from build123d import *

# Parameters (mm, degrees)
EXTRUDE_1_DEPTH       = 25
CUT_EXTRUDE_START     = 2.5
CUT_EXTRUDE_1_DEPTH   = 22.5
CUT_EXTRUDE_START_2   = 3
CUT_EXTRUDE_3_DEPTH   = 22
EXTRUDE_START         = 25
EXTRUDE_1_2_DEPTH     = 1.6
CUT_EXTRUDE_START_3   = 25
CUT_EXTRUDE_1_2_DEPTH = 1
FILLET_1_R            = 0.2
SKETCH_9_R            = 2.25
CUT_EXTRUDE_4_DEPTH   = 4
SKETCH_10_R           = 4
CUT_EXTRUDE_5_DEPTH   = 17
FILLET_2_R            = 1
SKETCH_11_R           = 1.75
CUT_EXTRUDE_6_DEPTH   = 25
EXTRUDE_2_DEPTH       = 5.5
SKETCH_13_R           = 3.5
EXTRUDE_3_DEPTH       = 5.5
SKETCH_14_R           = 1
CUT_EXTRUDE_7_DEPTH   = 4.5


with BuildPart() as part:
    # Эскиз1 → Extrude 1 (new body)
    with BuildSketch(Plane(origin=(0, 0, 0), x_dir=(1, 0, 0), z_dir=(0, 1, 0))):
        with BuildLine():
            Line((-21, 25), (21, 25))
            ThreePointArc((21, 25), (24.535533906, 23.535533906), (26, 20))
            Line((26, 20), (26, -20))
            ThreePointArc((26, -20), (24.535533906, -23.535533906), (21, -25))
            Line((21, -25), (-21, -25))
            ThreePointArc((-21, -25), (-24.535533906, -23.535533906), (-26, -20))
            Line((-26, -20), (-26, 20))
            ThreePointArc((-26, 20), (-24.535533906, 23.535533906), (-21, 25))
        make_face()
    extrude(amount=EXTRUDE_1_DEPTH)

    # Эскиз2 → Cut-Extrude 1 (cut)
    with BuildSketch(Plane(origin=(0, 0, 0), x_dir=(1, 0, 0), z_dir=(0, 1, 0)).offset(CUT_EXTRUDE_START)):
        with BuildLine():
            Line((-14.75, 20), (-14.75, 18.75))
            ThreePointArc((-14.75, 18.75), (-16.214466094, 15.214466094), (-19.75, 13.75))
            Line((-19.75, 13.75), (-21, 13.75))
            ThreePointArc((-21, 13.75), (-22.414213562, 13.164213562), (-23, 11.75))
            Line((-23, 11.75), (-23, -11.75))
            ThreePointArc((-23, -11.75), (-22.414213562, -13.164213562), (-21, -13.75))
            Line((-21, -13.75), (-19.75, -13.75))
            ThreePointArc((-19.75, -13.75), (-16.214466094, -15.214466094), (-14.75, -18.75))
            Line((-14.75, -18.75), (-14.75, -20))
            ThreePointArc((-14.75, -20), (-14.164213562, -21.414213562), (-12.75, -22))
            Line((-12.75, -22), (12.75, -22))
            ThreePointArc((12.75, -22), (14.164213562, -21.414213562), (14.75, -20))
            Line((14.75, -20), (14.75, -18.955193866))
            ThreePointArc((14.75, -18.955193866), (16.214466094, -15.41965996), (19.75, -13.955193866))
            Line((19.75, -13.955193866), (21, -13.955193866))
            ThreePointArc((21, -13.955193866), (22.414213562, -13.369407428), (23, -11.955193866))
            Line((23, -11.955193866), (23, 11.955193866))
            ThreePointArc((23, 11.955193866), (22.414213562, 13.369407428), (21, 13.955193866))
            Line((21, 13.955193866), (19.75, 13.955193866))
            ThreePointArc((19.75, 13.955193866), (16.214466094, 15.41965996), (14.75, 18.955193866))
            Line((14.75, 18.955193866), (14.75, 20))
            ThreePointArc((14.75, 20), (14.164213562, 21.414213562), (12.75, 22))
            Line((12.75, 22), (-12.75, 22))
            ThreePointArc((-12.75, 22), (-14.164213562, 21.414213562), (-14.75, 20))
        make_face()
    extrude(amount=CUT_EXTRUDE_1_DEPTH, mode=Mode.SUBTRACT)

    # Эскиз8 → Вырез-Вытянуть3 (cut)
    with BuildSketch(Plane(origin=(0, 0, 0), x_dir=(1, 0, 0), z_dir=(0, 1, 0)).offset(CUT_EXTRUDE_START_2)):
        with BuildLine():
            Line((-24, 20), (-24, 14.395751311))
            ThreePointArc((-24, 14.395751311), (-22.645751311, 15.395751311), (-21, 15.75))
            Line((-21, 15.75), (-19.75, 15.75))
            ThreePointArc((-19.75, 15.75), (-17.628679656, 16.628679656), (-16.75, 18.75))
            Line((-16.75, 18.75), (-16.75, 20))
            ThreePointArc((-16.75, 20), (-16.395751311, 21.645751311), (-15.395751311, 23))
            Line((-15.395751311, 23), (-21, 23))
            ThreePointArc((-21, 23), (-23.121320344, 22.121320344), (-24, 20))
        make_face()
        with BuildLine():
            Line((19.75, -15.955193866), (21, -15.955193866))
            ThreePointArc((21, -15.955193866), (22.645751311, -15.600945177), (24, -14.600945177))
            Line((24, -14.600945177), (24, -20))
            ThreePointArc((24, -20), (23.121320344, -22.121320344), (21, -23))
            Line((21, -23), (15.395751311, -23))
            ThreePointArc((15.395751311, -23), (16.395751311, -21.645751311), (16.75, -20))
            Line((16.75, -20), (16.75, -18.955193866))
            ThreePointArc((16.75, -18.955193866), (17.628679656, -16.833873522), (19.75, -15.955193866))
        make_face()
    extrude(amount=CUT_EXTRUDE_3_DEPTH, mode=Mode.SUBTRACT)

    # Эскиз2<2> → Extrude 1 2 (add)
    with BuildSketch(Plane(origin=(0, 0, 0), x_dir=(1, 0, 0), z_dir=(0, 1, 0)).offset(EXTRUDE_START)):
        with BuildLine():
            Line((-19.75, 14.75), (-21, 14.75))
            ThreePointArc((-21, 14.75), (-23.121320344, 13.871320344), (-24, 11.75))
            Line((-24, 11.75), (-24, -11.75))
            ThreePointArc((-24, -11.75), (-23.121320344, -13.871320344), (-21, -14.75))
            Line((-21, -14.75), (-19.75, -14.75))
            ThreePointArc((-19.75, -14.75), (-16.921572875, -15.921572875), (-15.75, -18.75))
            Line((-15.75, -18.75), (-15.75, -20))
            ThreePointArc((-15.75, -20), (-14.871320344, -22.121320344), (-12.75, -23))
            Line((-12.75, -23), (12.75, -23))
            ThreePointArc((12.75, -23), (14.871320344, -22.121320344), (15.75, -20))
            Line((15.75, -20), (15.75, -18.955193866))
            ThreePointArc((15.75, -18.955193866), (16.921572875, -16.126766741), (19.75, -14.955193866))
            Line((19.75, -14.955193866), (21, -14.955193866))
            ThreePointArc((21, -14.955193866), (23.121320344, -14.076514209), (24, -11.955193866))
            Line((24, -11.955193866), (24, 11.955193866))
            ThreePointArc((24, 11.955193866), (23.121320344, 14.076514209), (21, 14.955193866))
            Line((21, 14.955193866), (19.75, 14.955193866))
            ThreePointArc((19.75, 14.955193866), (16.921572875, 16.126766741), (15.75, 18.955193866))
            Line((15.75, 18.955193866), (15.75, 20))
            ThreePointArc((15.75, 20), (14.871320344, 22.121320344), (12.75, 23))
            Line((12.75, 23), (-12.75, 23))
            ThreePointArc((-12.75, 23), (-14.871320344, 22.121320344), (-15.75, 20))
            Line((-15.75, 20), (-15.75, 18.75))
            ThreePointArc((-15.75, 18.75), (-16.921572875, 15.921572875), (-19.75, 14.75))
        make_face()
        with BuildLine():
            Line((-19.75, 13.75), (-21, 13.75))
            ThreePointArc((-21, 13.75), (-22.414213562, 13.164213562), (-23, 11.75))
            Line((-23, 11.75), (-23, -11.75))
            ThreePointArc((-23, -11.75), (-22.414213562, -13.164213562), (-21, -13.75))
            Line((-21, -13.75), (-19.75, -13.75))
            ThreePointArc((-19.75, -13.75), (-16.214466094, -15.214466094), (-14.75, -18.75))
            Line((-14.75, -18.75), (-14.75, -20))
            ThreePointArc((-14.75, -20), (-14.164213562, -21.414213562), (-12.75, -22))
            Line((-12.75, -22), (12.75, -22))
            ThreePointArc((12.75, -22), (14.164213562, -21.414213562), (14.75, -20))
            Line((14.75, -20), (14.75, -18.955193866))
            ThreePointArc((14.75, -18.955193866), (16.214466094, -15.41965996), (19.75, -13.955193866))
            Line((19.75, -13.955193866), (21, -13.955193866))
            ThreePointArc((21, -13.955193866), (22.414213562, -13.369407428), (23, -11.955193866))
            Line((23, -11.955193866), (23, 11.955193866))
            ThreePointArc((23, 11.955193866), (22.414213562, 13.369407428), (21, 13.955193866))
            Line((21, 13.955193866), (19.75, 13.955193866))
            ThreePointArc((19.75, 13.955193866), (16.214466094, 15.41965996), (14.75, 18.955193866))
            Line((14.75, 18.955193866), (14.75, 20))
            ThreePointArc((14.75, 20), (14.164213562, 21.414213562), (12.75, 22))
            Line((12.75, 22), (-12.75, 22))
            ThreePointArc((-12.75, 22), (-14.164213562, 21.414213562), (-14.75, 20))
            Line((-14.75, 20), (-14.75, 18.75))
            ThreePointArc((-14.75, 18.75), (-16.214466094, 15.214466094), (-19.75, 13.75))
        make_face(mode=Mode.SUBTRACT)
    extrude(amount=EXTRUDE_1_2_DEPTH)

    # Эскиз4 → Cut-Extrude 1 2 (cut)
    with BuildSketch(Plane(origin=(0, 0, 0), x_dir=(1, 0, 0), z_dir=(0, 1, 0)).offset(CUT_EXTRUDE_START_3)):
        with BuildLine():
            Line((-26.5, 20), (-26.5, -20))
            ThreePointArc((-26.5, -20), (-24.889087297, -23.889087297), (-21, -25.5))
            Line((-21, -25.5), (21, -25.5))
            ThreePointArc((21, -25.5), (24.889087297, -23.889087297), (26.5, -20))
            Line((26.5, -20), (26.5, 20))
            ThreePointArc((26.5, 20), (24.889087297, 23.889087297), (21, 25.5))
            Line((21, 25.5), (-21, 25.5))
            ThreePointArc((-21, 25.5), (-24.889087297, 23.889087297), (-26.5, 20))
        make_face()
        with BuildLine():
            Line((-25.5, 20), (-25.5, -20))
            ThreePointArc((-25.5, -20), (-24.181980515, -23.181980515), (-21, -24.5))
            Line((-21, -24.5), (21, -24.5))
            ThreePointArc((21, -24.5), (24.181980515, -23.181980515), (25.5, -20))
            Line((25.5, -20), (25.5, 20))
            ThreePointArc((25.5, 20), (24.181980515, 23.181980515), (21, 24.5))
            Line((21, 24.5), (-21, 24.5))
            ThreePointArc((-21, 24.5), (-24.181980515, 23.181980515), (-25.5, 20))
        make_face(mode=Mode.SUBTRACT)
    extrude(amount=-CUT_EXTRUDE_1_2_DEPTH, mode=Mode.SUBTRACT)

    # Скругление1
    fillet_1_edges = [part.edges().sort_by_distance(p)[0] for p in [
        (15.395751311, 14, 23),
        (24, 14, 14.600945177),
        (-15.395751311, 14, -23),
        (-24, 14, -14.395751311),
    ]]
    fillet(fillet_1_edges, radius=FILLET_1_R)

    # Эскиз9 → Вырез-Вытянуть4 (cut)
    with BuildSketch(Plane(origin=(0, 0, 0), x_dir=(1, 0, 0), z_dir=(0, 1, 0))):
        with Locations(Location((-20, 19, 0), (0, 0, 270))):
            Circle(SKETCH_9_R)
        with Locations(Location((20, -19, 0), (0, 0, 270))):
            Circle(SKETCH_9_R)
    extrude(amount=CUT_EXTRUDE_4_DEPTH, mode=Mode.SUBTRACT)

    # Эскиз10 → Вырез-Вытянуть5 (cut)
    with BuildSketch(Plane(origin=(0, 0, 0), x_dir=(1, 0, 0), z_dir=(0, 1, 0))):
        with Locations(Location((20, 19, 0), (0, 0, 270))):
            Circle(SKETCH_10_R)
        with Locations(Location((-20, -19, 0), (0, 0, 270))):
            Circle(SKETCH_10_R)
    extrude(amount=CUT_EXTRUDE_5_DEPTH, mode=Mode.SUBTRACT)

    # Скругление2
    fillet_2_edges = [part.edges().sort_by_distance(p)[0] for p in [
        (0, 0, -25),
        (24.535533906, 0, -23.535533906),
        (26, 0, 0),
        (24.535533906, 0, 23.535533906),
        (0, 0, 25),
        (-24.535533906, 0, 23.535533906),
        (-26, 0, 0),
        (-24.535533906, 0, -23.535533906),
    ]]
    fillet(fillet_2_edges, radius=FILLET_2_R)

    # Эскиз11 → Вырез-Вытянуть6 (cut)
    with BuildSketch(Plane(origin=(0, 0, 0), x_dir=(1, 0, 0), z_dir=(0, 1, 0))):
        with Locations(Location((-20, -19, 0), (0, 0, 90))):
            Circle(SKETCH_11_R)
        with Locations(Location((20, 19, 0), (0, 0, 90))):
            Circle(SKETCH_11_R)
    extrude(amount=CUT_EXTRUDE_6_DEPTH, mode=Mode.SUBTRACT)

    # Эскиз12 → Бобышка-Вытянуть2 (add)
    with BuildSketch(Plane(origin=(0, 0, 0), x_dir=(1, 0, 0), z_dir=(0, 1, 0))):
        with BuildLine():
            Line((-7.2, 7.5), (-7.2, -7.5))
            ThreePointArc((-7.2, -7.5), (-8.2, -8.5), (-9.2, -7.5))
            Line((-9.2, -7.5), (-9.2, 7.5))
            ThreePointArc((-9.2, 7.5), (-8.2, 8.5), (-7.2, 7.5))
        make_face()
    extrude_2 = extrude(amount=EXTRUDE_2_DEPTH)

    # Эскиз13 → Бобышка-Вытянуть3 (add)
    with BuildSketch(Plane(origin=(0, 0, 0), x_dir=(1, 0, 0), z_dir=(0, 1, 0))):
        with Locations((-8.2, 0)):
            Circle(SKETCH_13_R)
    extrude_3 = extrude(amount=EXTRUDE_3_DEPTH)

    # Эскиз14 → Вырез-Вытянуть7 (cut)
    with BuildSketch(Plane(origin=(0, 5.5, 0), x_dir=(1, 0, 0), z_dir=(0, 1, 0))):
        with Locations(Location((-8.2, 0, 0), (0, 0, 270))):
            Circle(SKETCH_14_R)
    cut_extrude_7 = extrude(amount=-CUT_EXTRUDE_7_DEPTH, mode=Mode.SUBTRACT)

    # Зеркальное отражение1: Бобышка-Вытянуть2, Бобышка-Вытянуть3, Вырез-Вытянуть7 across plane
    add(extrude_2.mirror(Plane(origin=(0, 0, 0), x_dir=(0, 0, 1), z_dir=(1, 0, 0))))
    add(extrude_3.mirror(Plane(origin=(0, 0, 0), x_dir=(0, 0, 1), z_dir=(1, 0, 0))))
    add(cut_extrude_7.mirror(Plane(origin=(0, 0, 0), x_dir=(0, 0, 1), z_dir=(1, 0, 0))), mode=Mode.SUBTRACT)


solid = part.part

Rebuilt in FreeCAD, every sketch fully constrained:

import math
import FreeCAD as App
import Part
import Sketcher
from FreeCAD import Vector


def edges_at(feature, points):
    """Names of the edges that pass closest to the given points."""
    edges = feature.Shape.Edges
    near = lambda p: min(range(len(edges)), key=lambda i: edges[i].distToShape(Part.Vertex(*p))[0])
    return sorted({f"Edge{near(p) + 1}" for p in points})

doc = App.newDocument("Part")
body = doc.addObject("PartDesign::Body", "Body")

# Sketch on XZ plane
sketch1 = body.newObject("Sketcher::SketchObject", "Sketch")
sketch1.AttachmentSupport = (doc.getObject("XZ_Plane"), [""])
sketch1.MapMode = "FlatFace"
sketch1.addGeometry(Part.LineSegment(Vector(21, -25, 0), Vector(-21, -25, 0)), False)
sketch1.addGeometry(Part.ArcOfCircle(Part.Circle(Vector(-21, -20, 0), Vector(0, 0, 1), 5), math.radians(180), math.radians(270)), False)
sketch1.addGeometry(Part.LineSegment(Vector(-26, -20, 0), Vector(-26, 20, 0)), False)
sketch1.addGeometry(Part.ArcOfCircle(Part.Circle(Vector(-21, 20, 0), Vector(0, 0, 1), 5), math.radians(90), math.radians(180)), False)
sketch1.addGeometry(Part.LineSegment(Vector(-21, 25, 0), Vector(21, 25, 0)), False)
sketch1.addGeometry(Part.ArcOfCircle(Part.Circle(Vector(21, 20, 0), Vector(0, 0, 1), 5), math.radians(0), math.radians(90)), False)
sketch1.addGeometry(Part.LineSegment(Vector(26, 20, 0), Vector(26, -20, 0)), False)
sketch1.addGeometry(Part.ArcOfCircle(Part.Circle(Vector(21, -20, 0), Vector(0, 0, 1), 5), math.radians(-90), math.radians(0)), False)
sketch1.addConstraint(Sketcher.Constraint("Tangent", 0, 2, 1, 2))
sketch1.addConstraint(Sketcher.Constraint("Tangent", 1, 1, 2, 1))
sketch1.addConstraint(Sketcher.Constraint("Tangent", 2, 2, 3, 2))
sketch1.addConstraint(Sketcher.Constraint("Tangent", 3, 1, 4, 1))
sketch1.addConstraint(Sketcher.Constraint("Tangent", 4, 2, 5, 2))
sketch1.addConstraint(Sketcher.Constraint("Tangent", 5, 1, 6, 1))
sketch1.addConstraint(Sketcher.Constraint("Tangent", 6, 2, 7, 2))
sketch1.addConstraint(Sketcher.Constraint("Tangent", 7, 1, 0, 1))
sketch1.addConstraint(Sketcher.Constraint("Horizontal", 0))
sketch1.addConstraint(Sketcher.Constraint("Vertical", 2))
sketch1.addConstraint(Sketcher.Constraint("Horizontal", 4))
sketch1.addConstraint(Sketcher.Constraint("Vertical", 6))
sketch1.addConstraint(Sketcher.Constraint("Equal", 1, 3))
sketch1.addConstraint(Sketcher.Constraint("Equal", 3, 5))
sketch1.addConstraint(Sketcher.Constraint("Equal", 5, 7))
sketch1.addConstraint(Sketcher.Constraint("Symmetric", 1, 3, 5, 3, -1, 1))
sketch1.addConstraint(Sketcher.Constraint("Radius", 1, 5.0))
sketch1.addConstraint(Sketcher.Constraint("DistanceX", 0, 2, 0, 1, 42.0))
sketch1.addConstraint(Sketcher.Constraint("DistanceY", 2, 1, 2, 2, 40.0))
pad1 = body.newObject("PartDesign::Pad", "Pad")
pad1.Profile = sketch1
pad1.Length = 25
pad1.Reversed = True

# Sketch on XZ plane
sketch2 = body.newObject("Sketcher::SketchObject", "Sketch001")
sketch2.AttachmentSupport = (doc.getObject("XZ_Plane"), [""])
sketch2.MapMode = "FlatFace"
sketch2.AttachmentOffset = App.Placement(Vector(0, 0, -2.5), App.Rotation())
sketch2.addGeometry(Part.LineSegment(Vector(-14.8, -20, 0), Vector(-14.8, -18.8, 0)), False)
sketch2.addGeometry(Part.ArcOfCircle(Part.Circle(Vector(-19.8, -18.8, 0), Vector(0, 0, 1), 5), math.radians(0), math.radians(90)), False)
sketch2.addGeometry(Part.LineSegment(Vector(-19.8, -13.8, 0), Vector(-21, -13.8, 0)), False)
sketch2.addGeometry(Part.ArcOfCircle(Part.Circle(Vector(-21, -11.7, 0), Vector(0, 0, 1), 2), math.radians(-180), math.radians(-90)), False)
sketch2.addGeometry(Part.LineSegment(Vector(-23, -11.8, 0), Vector(-23, 11.8, 0)), False)
sketch2.addGeometry(Part.ArcOfCircle(Part.Circle(Vector(-21, 11.7, 0), Vector(0, 0, 1), 2), math.radians(90), math.radians(180)), False)
sketch2.addGeometry(Part.LineSegment(Vector(-21, 13.8, 0), Vector(-19.8, 13.8, 0)), False)
sketch2.addGeometry(Part.ArcOfCircle(Part.Circle(Vector(-19.8, 18.8, 0), Vector(0, 0, 1), 5), math.radians(-90), math.radians(0)), False)
sketch2.addGeometry(Part.LineSegment(Vector(-14.8, 18.8, 0), Vector(-14.8, 20, 0)), False)
sketch2.addGeometry(Part.ArcOfCircle(Part.Circle(Vector(-12.7, 20, 0), Vector(0, 0, 1), 2), math.radians(90), math.radians(180)), False)
sketch2.addGeometry(Part.LineSegment(Vector(-12.8, 22, 0), Vector(12.8, 22, 0)), False)
sketch2.addGeometry(Part.ArcOfCircle(Part.Circle(Vector(12.7, 20, 0), Vector(0, 0, 1), 2), math.radians(0), math.radians(90)), False)
sketch2.addGeometry(Part.LineSegment(Vector(14.8, 20, 0), Vector(14.8, 19, 0)), False)
sketch2.addGeometry(Part.ArcOfCircle(Part.Circle(Vector(19.8, 19, 0), Vector(0, 0, 1), 5), math.radians(180), math.radians(270)), False)
sketch2.addGeometry(Part.LineSegment(Vector(19.8, 14, 0), Vector(21, 14, 0)), False)
sketch2.addGeometry(Part.ArcOfCircle(Part.Circle(Vector(21, 12, 0), Vector(0, 0, 1), 2), math.radians(0), math.radians(90)), False)
sketch2.addGeometry(Part.LineSegment(Vector(23, 12, 0), Vector(23, -12, 0)), False)
sketch2.addGeometry(Part.ArcOfCircle(Part.Circle(Vector(21, -12, 0), Vector(0, 0, 1), 2), math.radians(-90), math.radians(0)), False)
sketch2.addGeometry(Part.LineSegment(Vector(21, -14, 0), Vector(19.8, -14, 0)), False)
sketch2.addGeometry(Part.ArcOfCircle(Part.Circle(Vector(19.8, -19, 0), Vector(0, 0, 1), 5), math.radians(90), math.radians(180)), False)
sketch2.addGeometry(Part.LineSegment(Vector(14.8, -19, 0), Vector(14.8, -20, 0)), False)
sketch2.addGeometry(Part.ArcOfCircle(Part.Circle(Vector(12.7, -20, 0), Vector(0, 0, 1), 2), math.radians(-90), math.radians(0)), False)
sketch2.addGeometry(Part.LineSegment(Vector(12.8, -22, 0), Vector(-12.8, -22, 0)), False)
sketch2.addGeometry(Part.ArcOfCircle(Part.Circle(Vector(-12.7, -20, 0), Vector(0, 0, 1), 2), math.radians(-180), math.radians(-90)), False)
sketch2.addConstraint(Sketcher.Constraint("Tangent", 0, 2, 1, 1))
sketch2.addConstraint(Sketcher.Constraint("Tangent", 1, 2, 2, 1))
sketch2.addConstraint(Sketcher.Constraint("Tangent", 2, 2, 3, 2))
sketch2.addConstraint(Sketcher.Constraint("Tangent", 3, 1, 4, 1))
sketch2.addConstraint(Sketcher.Constraint("Tangent", 4, 2, 5, 2))
sketch2.addConstraint(Sketcher.Constraint("Tangent", 5, 1, 6, 1))
sketch2.addConstraint(Sketcher.Constraint("Tangent", 6, 2, 7, 1))
sketch2.addConstraint(Sketcher.Constraint("Tangent", 7, 2, 8, 1))
sketch2.addConstraint(Sketcher.Constraint("Tangent", 8, 2, 9, 2))
sketch2.addConstraint(Sketcher.Constraint("Tangent", 9, 1, 10, 1))
sketch2.addConstraint(Sketcher.Constraint("Tangent", 10, 2, 11, 2))
sketch2.addConstraint(Sketcher.Constraint("Tangent", 11, 1, 12, 1))
sketch2.addConstraint(Sketcher.Constraint("Tangent", 12, 2, 13, 1))
sketch2.addConstraint(Sketcher.Constraint("Tangent", 13, 2, 14, 1))
sketch2.addConstraint(Sketcher.Constraint("Tangent", 14, 2, 15, 2))
sketch2.addConstraint(Sketcher.Constraint("Tangent", 15, 1, 16, 1))
sketch2.addConstraint(Sketcher.Constraint("Tangent", 16, 2, 17, 2))
sketch2.addConstraint(Sketcher.Constraint("Tangent", 17, 1, 18, 1))
sketch2.addConstraint(Sketcher.Constraint("Tangent", 18, 2, 19, 1))
sketch2.addConstraint(Sketcher.Constraint("Tangent", 19, 2, 20, 1))
sketch2.addConstraint(Sketcher.Constraint("Tangent", 20, 2, 21, 2))
sketch2.addConstraint(Sketcher.Constraint("Tangent", 21, 1, 22, 1))
sketch2.addConstraint(Sketcher.Constraint("Tangent", 22, 2, 23, 2))
sketch2.addConstraint(Sketcher.Constraint("Tangent", 23, 1, 0, 1))
sketch2.addConstraint(Sketcher.Constraint("Vertical", 0))
sketch2.addConstraint(Sketcher.Constraint("Horizontal", 2))
sketch2.addConstraint(Sketcher.Constraint("Vertical", 4))
sketch2.addConstraint(Sketcher.Constraint("Horizontal", 6))
sketch2.addConstraint(Sketcher.Constraint("Vertical", 8))
sketch2.addConstraint(Sketcher.Constraint("Horizontal", 10))
sketch2.addConstraint(Sketcher.Constraint("Vertical", 12))
sketch2.addConstraint(Sketcher.Constraint("Horizontal", 14))
sketch2.addConstraint(Sketcher.Constraint("Vertical", 16))
sketch2.addConstraint(Sketcher.Constraint("Horizontal", 18))
sketch2.addConstraint(Sketcher.Constraint("Vertical", 20))
sketch2.addConstraint(Sketcher.Constraint("Horizontal", 22))
sketch2.addConstraint(Sketcher.Constraint("Equal", 3, 5))
sketch2.addConstraint(Sketcher.Constraint("Equal", 1, 7))
sketch2.addConstraint(Sketcher.Constraint("Equal", 5, 9))
sketch2.addConstraint(Sketcher.Constraint("Equal", 9, 11))
sketch2.addConstraint(Sketcher.Constraint("Equal", 7, 13))
sketch2.addConstraint(Sketcher.Constraint("Equal", 11, 15))
sketch2.addConstraint(Sketcher.Constraint("Equal", 15, 17))
sketch2.addConstraint(Sketcher.Constraint("Equal", 13, 19))
sketch2.addConstraint(Sketcher.Constraint("Equal", 17, 21))
sketch2.addConstraint(Sketcher.Constraint("Equal", 21, 23))
sketch2.addConstraint(Sketcher.Constraint("Symmetric", 9, 3, 21, 3, -1, 1))
sketch2.addConstraint(Sketcher.Constraint("Symmetric", 1, 3, 7, 3, -1))
sketch2.addConstraint(Sketcher.Constraint("Symmetric", 13, 3, 19, 3, -1))
sketch2.addConstraint(Sketcher.Constraint("Equal", 6, 14))
sketch2.addConstraint(Sketcher.Constraint("Equal", 18, 0))
sketch2.addConstraint(Sketcher.Constraint("Radius", 1, 5.0))
sketch2.addConstraint(Sketcher.Constraint("Radius", 3, 2.0))
sketch2.addConstraint(Sketcher.Constraint("DistanceX", 10, 1, 10, 2, 25.5))
sketch2.addConstraint(Sketcher.Constraint("DistanceY", 4, 1, 4, 2, 23.5))
sketch2.addConstraint(Sketcher.Constraint("DistanceX", 3, 3, -1, 1, 21.0))
sketch2.addConstraint(Sketcher.Constraint("DistanceY", 12, 2, 12, 1, 1.044806))
pocket1 = body.newObject("PartDesign::Pocket", "Pocket")
pocket1.Profile = sketch2
pocket1.Length = 22.5

# Sketch on XZ plane
sketch3 = body.newObject("Sketcher::SketchObject", "Sketch002")
sketch3.AttachmentSupport = (doc.getObject("XZ_Plane"), [""])
sketch3.MapMode = "FlatFace"
sketch3.AttachmentOffset = App.Placement(Vector(0, 0, -3), App.Rotation())
sketch3.addGeometry(Part.LineSegment(Vector(-24, -20, 0), Vector(-24, -14.4, 0)), False)
sketch3.addGeometry(Part.ArcOfCircle(Part.Circle(Vector(-21, -11.7, 0), Vector(0, 0, 1), 4), math.radians(-139), math.radians(-90)), False)
sketch3.addGeometry(Part.LineSegment(Vector(-21, -15.8, 0), Vector(-19.8, -15.8, 0)), False)
sketch3.addGeometry(Part.ArcOfCircle(Part.Circle(Vector(-19.7, -18.7, 0), Vector(0, 0, 1), 3), math.radians(0), math.radians(90)), False)
sketch3.addGeometry(Part.LineSegment(Vector(-16.8, -18.8, 0), Vector(-16.8, -20, 0)), False)
sketch3.addGeometry(Part.ArcOfCircle(Part.Circle(Vector(-12.7, -20, 0), Vector(0, 0, 1), 4), math.radians(180), math.radians(229)), False)
sketch3.addGeometry(Part.LineSegment(Vector(-15.4, -23, 0), Vector(-21, -23, 0)), False)
sketch3.addGeometry(Part.ArcOfCircle(Part.Circle(Vector(-21, -20, 0), Vector(0, 0, 1), 3), math.radians(180), math.radians(270)), False)
sketch3.addGeometry(Part.LineSegment(Vector(21, 16, 0), Vector(19.8, 16, 0)), False)
sketch3.addGeometry(Part.ArcOfCircle(Part.Circle(Vector(19.7, 19, 0), Vector(0, 0, 1), 3), math.radians(180), math.radians(270)), False)
sketch3.addGeometry(Part.LineSegment(Vector(16.8, 19, 0), Vector(16.8, 20, 0)), False)
sketch3.addGeometry(Part.ArcOfCircle(Part.Circle(Vector(12.7, 20, 0), Vector(0, 0, 1), 4), math.radians(0), math.radians(49)), False)
sketch3.addGeometry(Part.LineSegment(Vector(15.4, 23, 0), Vector(21, 23, 0)), False)
sketch3.addGeometry(Part.ArcOfCircle(Part.Circle(Vector(21, 20, 0), Vector(0, 0, 1), 3), math.radians(0), math.radians(90)), False)
sketch3.addGeometry(Part.LineSegment(Vector(24, 20, 0), Vector(24, 14.6, 0)), False)
sketch3.addGeometry(Part.ArcOfCircle(Part.Circle(Vector(21, 12, 0), Vector(0, 0, 1), 4), math.radians(41), math.radians(90)), False)
sketch3.addConstraint(Sketcher.Constraint("Coincident", 0, 2, 1, 1))
sketch3.addConstraint(Sketcher.Constraint("Tangent", 1, 2, 2, 1))
sketch3.addConstraint(Sketcher.Constraint("Tangent", 2, 2, 3, 2))
sketch3.addConstraint(Sketcher.Constraint("Tangent", 3, 1, 4, 1))
sketch3.addConstraint(Sketcher.Constraint("Tangent", 4, 2, 5, 1))
sketch3.addConstraint(Sketcher.Constraint("Coincident", 5, 2, 6, 1))
sketch3.addConstraint(Sketcher.Constraint("Tangent", 6, 2, 7, 2))
sketch3.addConstraint(Sketcher.Constraint("Tangent", 7, 1, 0, 1))
sketch3.addConstraint(Sketcher.Constraint("Tangent", 8, 2, 9, 2))
sketch3.addConstraint(Sketcher.Constraint("Tangent", 9, 1, 10, 1))
sketch3.addConstraint(Sketcher.Constraint("Tangent", 10, 2, 11, 1))
sketch3.addConstraint(Sketcher.Constraint("Coincident", 11, 2, 12, 1))
sketch3.addConstraint(Sketcher.Constraint("Tangent", 12, 2, 13, 2))
sketch3.addConstraint(Sketcher.Constraint("Tangent", 13, 1, 14, 1))
sketch3.addConstraint(Sketcher.Constraint("Coincident", 14, 2, 15, 1))
sketch3.addConstraint(Sketcher.Constraint("Tangent", 15, 2, 8, 1))
sketch3.addConstraint(Sketcher.Constraint("Vertical", 0))
sketch3.addConstraint(Sketcher.Constraint("Horizontal", 2))
sketch3.addConstraint(Sketcher.Constraint("Vertical", 4))
sketch3.addConstraint(Sketcher.Constraint("Horizontal", 6))
sketch3.addConstraint(Sketcher.Constraint("Horizontal", 8))
sketch3.addConstraint(Sketcher.Constraint("Vertical", 10))
sketch3.addConstraint(Sketcher.Constraint("Horizontal", 12))
sketch3.addConstraint(Sketcher.Constraint("Vertical", 14))
sketch3.addConstraint(Sketcher.Constraint("Equal", 1, 5))
sketch3.addConstraint(Sketcher.Constraint("Equal", 3, 7))
sketch3.addConstraint(Sketcher.Constraint("Equal", 7, 9))
sketch3.addConstraint(Sketcher.Constraint("Equal", 5, 11))
sketch3.addConstraint(Sketcher.Constraint("Equal", 9, 13))
sketch3.addConstraint(Sketcher.Constraint("Equal", 11, 15))
sketch3.addConstraint(Sketcher.Constraint("Symmetric", 5, 3, 11, 3, -1, 1))
sketch3.addConstraint(Sketcher.Constraint("Symmetric", 7, 3, 13, 3, -1, 1))
sketch3.addConstraint(Sketcher.Constraint("Horizontal", 5, 3, 7, 3))
sketch3.addConstraint(Sketcher.Constraint("Vertical", 1, 3, 7, 3))
sketch3.addConstraint(Sketcher.Constraint("Vertical", 13, 3, 15, 3))
sketch3.addConstraint(Sketcher.Constraint("Equal", 12, 0))
sketch3.addConstraint(Sketcher.Constraint("Radius", 1, 4.0))
sketch3.addConstraint(Sketcher.Constraint("Radius", 3, 3.0))
sketch3.addConstraint(Sketcher.Constraint("DistanceX", 1, 3, -1, 1, 21.0))
sketch3.addConstraint(Sketcher.Constraint("DistanceY", 5, 3, -1, 1, 20.0))
sketch3.addConstraint(Sketcher.Constraint("DistanceX", 2, 1, 2, 2, 1.25))
sketch3.addConstraint(Sketcher.Constraint("DistanceY", 10, 1, 10, 2, 1.044806))
pocket2 = body.newObject("PartDesign::Pocket", "Pocket001")
pocket2.Profile = sketch3
pocket2.Length = 22

# Sketch on XZ plane
sketch4 = body.newObject("Sketcher::SketchObject", "Sketch003")
sketch4.AttachmentSupport = (doc.getObject("XZ_Plane"), [""])
sketch4.MapMode = "FlatFace"
sketch4.AttachmentOffset = App.Placement(Vector(0, 0, -25), App.Rotation())
sketch4.addGeometry(Part.LineSegment(Vector(-19.8, -14.8, 0), Vector(-21, -14.8, 0)), False)
sketch4.addGeometry(Part.ArcOfCircle(Part.Circle(Vector(-21, -11.8, 0), Vector(0, 0, 1), 3), math.radians(180), math.radians(270)), False)
sketch4.addGeometry(Part.LineSegment(Vector(-24, -11.8, 0), Vector(-24, 11.8, 0)), False)
sketch4.addGeometry(Part.ArcOfCircle(Part.Circle(Vector(-21, 11.8, 0), Vector(0, 0, 1), 3), math.radians(90), math.radians(180)), False)
sketch4.addGeometry(Part.LineSegment(Vector(-21, 14.8, 0), Vector(-19.8, 14.8, 0)), False)
sketch4.addGeometry(Part.ArcOfCircle(Part.Circle(Vector(-19.7, 18.7, 0), Vector(0, 0, 1), 4), math.radians(-90), math.radians(0)), False)
sketch4.addGeometry(Part.LineSegment(Vector(-15.8, 18.8, 0), Vector(-15.8, 20, 0)), False)
sketch4.addGeometry(Part.ArcOfCircle(Part.Circle(Vector(-12.8, 20, 0), Vector(0, 0, 1), 3), math.radians(90), math.radians(180)), False)
sketch4.addGeometry(Part.LineSegment(Vector(-12.8, 23, 0), Vector(12.8, 23, 0)), False)
sketch4.addGeometry(Part.ArcOfCircle(Part.Circle(Vector(12.8, 20, 0), Vector(0, 0, 1), 3), math.radians(0), math.radians(90)), False)
sketch4.addGeometry(Part.LineSegment(Vector(15.8, 20, 0), Vector(15.8, 19, 0)), False)
sketch4.addGeometry(Part.ArcOfCircle(Part.Circle(Vector(19.7, 19, 0), Vector(0, 0, 1), 4), math.radians(180), math.radians(270)), False)
sketch4.addGeometry(Part.LineSegment(Vector(19.8, 15, 0), Vector(21, 15, 0)), False)
sketch4.addGeometry(Part.ArcOfCircle(Part.Circle(Vector(21, 12, 0), Vector(0, 0, 1), 3), math.radians(0), math.radians(90)), False)
sketch4.addGeometry(Part.LineSegment(Vector(24, 12, 0), Vector(24, -12, 0)), False)
sketch4.addGeometry(Part.ArcOfCircle(Part.Circle(Vector(21, -12, 0), Vector(0, 0, 1), 3), math.radians(-90), math.radians(0)), False)
sketch4.addGeometry(Part.LineSegment(Vector(21, -15, 0), Vector(19.8, -15, 0)), False)
sketch4.addGeometry(Part.ArcOfCircle(Part.Circle(Vector(19.7, -19, 0), Vector(0, 0, 1), 4), math.radians(90), math.radians(180)), False)
sketch4.addGeometry(Part.LineSegment(Vector(15.8, -19, 0), Vector(15.8, -20, 0)), False)
sketch4.addGeometry(Part.ArcOfCircle(Part.Circle(Vector(12.8, -20, 0), Vector(0, 0, 1), 3), math.radians(-90), math.radians(0)), False)
sketch4.addGeometry(Part.LineSegment(Vector(12.8, -23, 0), Vector(-12.8, -23, 0)), False)
sketch4.addGeometry(Part.ArcOfCircle(Part.Circle(Vector(-12.8, -20, 0), Vector(0, 0, 1), 3), math.radians(180), math.radians(270)), False)
sketch4.addGeometry(Part.LineSegment(Vector(-15.8, -20, 0), Vector(-15.8, -18.8, 0)), False)
sketch4.addGeometry(Part.ArcOfCircle(Part.Circle(Vector(-19.7, -18.7, 0), Vector(0, 0, 1), 4), math.radians(0), math.radians(90)), False)
sketch4.addGeometry(Part.LineSegment(Vector(-21, -13.8, 0), Vector(-19.8, -13.8, 0)), False)
sketch4.addGeometry(Part.ArcOfCircle(Part.Circle(Vector(-19.8, -18.8, 0), Vector(0, 0, 1), 5), math.radians(0), math.radians(90)), False)
sketch4.addGeometry(Part.LineSegment(Vector(-14.8, -18.8, 0), Vector(-14.8, -20, 0)), False)
sketch4.addGeometry(Part.ArcOfCircle(Part.Circle(Vector(-12.7, -20, 0), Vector(0, 0, 1), 2), math.radians(-180), math.radians(-90)), False)
sketch4.addGeometry(Part.LineSegment(Vector(-12.8, -22, 0), Vector(12.8, -22, 0)), False)
sketch4.addGeometry(Part.ArcOfCircle(Part.Circle(Vector(12.7, -20, 0), Vector(0, 0, 1), 2), math.radians(-90), math.radians(0)), False)
sketch4.addGeometry(Part.LineSegment(Vector(14.8, -20, 0), Vector(14.8, -19, 0)), False)
sketch4.addGeometry(Part.ArcOfCircle(Part.Circle(Vector(19.8, -19, 0), Vector(0, 0, 1), 5), math.radians(90), math.radians(180)), False)
sketch4.addGeometry(Part.LineSegment(Vector(19.8, -14, 0), Vector(21, -14, 0)), False)
sketch4.addGeometry(Part.ArcOfCircle(Part.Circle(Vector(21, -12, 0), Vector(0, 0, 1), 2), math.radians(-90), math.radians(0)), False)
sketch4.addGeometry(Part.LineSegment(Vector(23, -12, 0), Vector(23, 12, 0)), False)
sketch4.addGeometry(Part.ArcOfCircle(Part.Circle(Vector(21, 12, 0), Vector(0, 0, 1), 2), math.radians(0), math.radians(90)), False)
sketch4.addGeometry(Part.LineSegment(Vector(21, 14, 0), Vector(19.8, 14, 0)), False)
sketch4.addGeometry(Part.ArcOfCircle(Part.Circle(Vector(19.8, 19, 0), Vector(0, 0, 1), 5), math.radians(180), math.radians(270)), False)
sketch4.addGeometry(Part.LineSegment(Vector(14.8, 19, 0), Vector(14.8, 20, 0)), False)
sketch4.addGeometry(Part.ArcOfCircle(Part.Circle(Vector(12.7, 20, 0), Vector(0, 0, 1), 2), math.radians(0), math.radians(90)), False)
sketch4.addGeometry(Part.LineSegment(Vector(12.8, 22, 0), Vector(-12.8, 22, 0)), False)
sketch4.addGeometry(Part.ArcOfCircle(Part.Circle(Vector(-12.7, 20, 0), Vector(0, 0, 1), 2), math.radians(90), math.radians(180)), False)
sketch4.addGeometry(Part.LineSegment(Vector(-14.8, 20, 0), Vector(-14.8, 18.8, 0)), False)
sketch4.addGeometry(Part.ArcOfCircle(Part.Circle(Vector(-19.8, 18.8, 0), Vector(0, 0, 1), 5), math.radians(-90), math.radians(0)), False)
sketch4.addGeometry(Part.LineSegment(Vector(-19.8, 13.8, 0), Vector(-21, 13.8, 0)), False)
sketch4.addGeometry(Part.ArcOfCircle(Part.Circle(Vector(-21, 11.7, 0), Vector(0, 0, 1), 2), math.radians(90), math.radians(180)), False)
sketch4.addGeometry(Part.LineSegment(Vector(-23, 11.8, 0), Vector(-23, -11.8, 0)), False)
sketch4.addGeometry(Part.ArcOfCircle(Part.Circle(Vector(-21, -11.7, 0), Vector(0, 0, 1), 2), math.radians(-180), math.radians(-90)), False)
sketch4.addConstraint(Sketcher.Constraint("Tangent", 0, 2, 1, 2))
sketch4.addConstraint(Sketcher.Constraint("Tangent", 1, 1, 2, 1))
sketch4.addConstraint(Sketcher.Constraint("Tangent", 2, 2, 3, 2))
sketch4.addConstraint(Sketcher.Constraint("Tangent", 3, 1, 4, 1))
sketch4.addConstraint(Sketcher.Constraint("Tangent", 4, 2, 5, 1))
sketch4.addConstraint(Sketcher.Constraint("Tangent", 5, 2, 6, 1))
sketch4.addConstraint(Sketcher.Constraint("Tangent", 6, 2, 7, 2))
sketch4.addConstraint(Sketcher.Constraint("Tangent", 7, 1, 8, 1))
sketch4.addConstraint(Sketcher.Constraint("Tangent", 8, 2, 9, 2))
sketch4.addConstraint(Sketcher.Constraint("Tangent", 9, 1, 10, 1))
sketch4.addConstraint(Sketcher.Constraint("Tangent", 10, 2, 11, 1))
sketch4.addConstraint(Sketcher.Constraint("Tangent", 11, 2, 12, 1))
sketch4.addConstraint(Sketcher.Constraint("Tangent", 12, 2, 13, 2))
sketch4.addConstraint(Sketcher.Constraint("Tangent", 13, 1, 14, 1))
sketch4.addConstraint(Sketcher.Constraint("Tangent", 14, 2, 15, 2))
sketch4.addConstraint(Sketcher.Constraint("Tangent", 15, 1, 16, 1))
sketch4.addConstraint(Sketcher.Constraint("Tangent", 16, 2, 17, 1))
sketch4.addConstraint(Sketcher.Constraint("Tangent", 17, 2, 18, 1))
sketch4.addConstraint(Sketcher.Constraint("Tangent", 18, 2, 19, 2))
sketch4.addConstraint(Sketcher.Constraint("Tangent", 19, 1, 20, 1))
sketch4.addConstraint(Sketcher.Constraint("Tangent", 20, 2, 21, 2))
sketch4.addConstraint(Sketcher.Constraint("Tangent", 21, 1, 22, 1))
sketch4.addConstraint(Sketcher.Constraint("Tangent", 22, 2, 23, 1))
sketch4.addConstraint(Sketcher.Constraint("Tangent", 23, 2, 0, 1))
sketch4.addConstraint(Sketcher.Constraint("Tangent", 24, 2, 25, 2))
sketch4.addConstraint(Sketcher.Constraint("Tangent", 25, 1, 26, 1))
sketch4.addConstraint(Sketcher.Constraint("Tangent", 26, 2, 27, 1))
sketch4.addConstraint(Sketcher.Constraint("Tangent", 27, 2, 28, 1))
sketch4.addConstraint(Sketcher.Constraint("Tangent", 28, 2, 29, 1))
sketch4.addConstraint(Sketcher.Constraint("Tangent", 29, 2, 30, 1))
sketch4.addConstraint(Sketcher.Constraint("Tangent", 30, 2, 31, 2))
sketch4.addConstraint(Sketcher.Constraint("Tangent", 31, 1, 32, 1))
sketch4.addConstraint(Sketcher.Constraint("Tangent", 32, 2, 33, 1))
sketch4.addConstraint(Sketcher.Constraint("Tangent", 33, 2, 34, 1))
sketch4.addConstraint(Sketcher.Constraint("Tangent", 34, 2, 35, 1))
sketch4.addConstraint(Sketcher.Constraint("Tangent", 35, 2, 36, 1))
sketch4.addConstraint(Sketcher.Constraint("Tangent", 36, 2, 37, 2))
sketch4.addConstraint(Sketcher.Constraint("Tangent", 37, 1, 38, 1))
sketch4.addConstraint(Sketcher.Constraint("Tangent", 38, 2, 39, 1))
sketch4.addConstraint(Sketcher.Constraint("Tangent", 39, 2, 40, 1))
sketch4.addConstraint(Sketcher.Constraint("Tangent", 40, 2, 41, 1))
sketch4.addConstraint(Sketcher.Constraint("Tangent", 41, 2, 42, 1))
sketch4.addConstraint(Sketcher.Constraint("Tangent", 42, 2, 43, 2))
sketch4.addConstraint(Sketcher.Constraint("Tangent", 43, 1, 44, 1))
sketch4.addConstraint(Sketcher.Constraint("Tangent", 44, 2, 45, 1))
sketch4.addConstraint(Sketcher.Constraint("Tangent", 45, 2, 46, 1))
sketch4.addConstraint(Sketcher.Constraint("Tangent", 46, 2, 47, 1))
sketch4.addConstraint(Sketcher.Constraint("Tangent", 47, 2, 24, 1))
sketch4.addConstraint(Sketcher.Constraint("Horizontal", 0))
sketch4.addConstraint(Sketcher.Constraint("Vertical", 2))
sketch4.addConstraint(Sketcher.Constraint("Horizontal", 4))
sketch4.addConstraint(Sketcher.Constraint("Vertical", 6))
sketch4.addConstraint(Sketcher.Constraint("Horizontal", 8))
sketch4.addConstraint(Sketcher.Constraint("Vertical", 10))
sketch4.addConstraint(Sketcher.Constraint("Horizontal", 12))
sketch4.addConstraint(Sketcher.Constraint("Vertical", 14))
sketch4.addConstraint(Sketcher.Constraint("Horizontal", 16))
sketch4.addConstraint(Sketcher.Constraint("Vertical", 18))
sketch4.addConstraint(Sketcher.Constraint("Horizontal", 20))
sketch4.addConstraint(Sketcher.Constraint("Vertical", 22))
sketch4.addConstraint(Sketcher.Constraint("Horizontal", 24))
sketch4.addConstraint(Sketcher.Constraint("Vertical", 26))
sketch4.addConstraint(Sketcher.Constraint("Horizontal", 28))
sketch4.addConstraint(Sketcher.Constraint("Vertical", 30))
sketch4.addConstraint(Sketcher.Constraint("Horizontal", 32))
sketch4.addConstraint(Sketcher.Constraint("Vertical", 34))
sketch4.addConstraint(Sketcher.Constraint("Horizontal", 36))
sketch4.addConstraint(Sketcher.Constraint("Vertical", 38))
sketch4.addConstraint(Sketcher.Constraint("Horizontal", 40))
sketch4.addConstraint(Sketcher.Constraint("Vertical", 42))
sketch4.addConstraint(Sketcher.Constraint("Horizontal", 44))
sketch4.addConstraint(Sketcher.Constraint("Vertical", 46))
sketch4.addConstraint(Sketcher.Constraint("Coincident", 25, 3, 23, 3))
sketch4.addConstraint(Sketcher.Constraint("Coincident", 27, 3, 21, 3))
sketch4.addConstraint(Sketcher.Constraint("Coincident", 29, 3, 19, 3))
sketch4.addConstraint(Sketcher.Constraint("Coincident", 31, 3, 17, 3))
sketch4.addConstraint(Sketcher.Constraint("Coincident", 33, 3, 15, 3))
sketch4.addConstraint(Sketcher.Constraint("Coincident", 35, 3, 13, 3))
sketch4.addConstraint(Sketcher.Constraint("Coincident", 37, 3, 11, 3))
sketch4.addConstraint(Sketcher.Constraint("Coincident", 39, 3, 9, 3))
sketch4.addConstraint(Sketcher.Constraint("Coincident", 41, 3, 7, 3))
sketch4.addConstraint(Sketcher.Constraint("Coincident", 43, 3, 5, 3))
sketch4.addConstraint(Sketcher.Constraint("Coincident", 45, 3, 3, 3))
sketch4.addConstraint(Sketcher.Constraint("Equal", 1, 3))
sketch4.addConstraint(Sketcher.Constraint("Equal", 3, 7))
sketch4.addConstraint(Sketcher.Constraint("Equal", 7, 9))
sketch4.addConstraint(Sketcher.Constraint("Equal", 5, 11))
sketch4.addConstraint(Sketcher.Constraint("Equal", 9, 13))
sketch4.addConstraint(Sketcher.Constraint("Equal", 13, 15))
sketch4.addConstraint(Sketcher.Constraint("Equal", 11, 17))
sketch4.addConstraint(Sketcher.Constraint("Equal", 15, 19))
sketch4.addConstraint(Sketcher.Constraint("Equal", 19, 21))
sketch4.addConstraint(Sketcher.Constraint("Equal", 17, 23))
sketch4.addConstraint(Sketcher.Constraint("Equal", 45, 47))
sketch4.addConstraint(Sketcher.Constraint("Symmetric", 7, 3, 19, 3, -1, 1))
sketch4.addConstraint(Sketcher.Constraint("Symmetric", 11, 3, 17, 3, -1))
sketch4.addConstraint(Sketcher.Constraint("Symmetric", 5, 3, 23, 3, -1))
sketch4.addConstraint(Sketcher.Constraint("Equal", 4, 12))
sketch4.addConstraint(Sketcher.Constraint("Equal", 44, 6))
sketch4.addConstraint(Sketcher.Constraint("Radius", 1, 3.0))
sketch4.addConstraint(Sketcher.Constraint("Radius", 5, 4.0))
sketch4.addConstraint(Sketcher.Constraint("Radius", 25, 5.0))
sketch4.addConstraint(Sketcher.Constraint("DistanceX", 8, 1, 8, 2, 25.5))
sketch4.addConstraint(Sketcher.Constraint("DistanceY", 2, 1, 2, 2, 23.5))
sketch4.addConstraint(Sketcher.Constraint("DistanceX", 1, 3, -1, 1, 21.0))
sketch4.addConstraint(Sketcher.Constraint("DistanceY", 10, 2, 10, 1, 1.044806))
pad2 = body.newObject("PartDesign::Pad", "Pad001")
pad2.Profile = sketch4
pad2.Length = 1.6
pad2.Reversed = True

# Sketch on XZ plane
sketch5 = body.newObject("Sketcher::SketchObject", "Sketch004")
sketch5.AttachmentSupport = (doc.getObject("XZ_Plane"), [""])
sketch5.MapMode = "FlatFace"
sketch5.AttachmentOffset = App.Placement(Vector(0, 0, -25), App.Rotation())
sketch5.addGeometry(Part.LineSegment(Vector(-26.5, -20, 0), Vector(-26.5, 20, 0)), False)
sketch5.addGeometry(Part.ArcOfCircle(Part.Circle(Vector(-21, 20, 0), Vector(0, 0, 1), 5.5), math.radians(90), math.radians(180)), False)
sketch5.addGeometry(Part.LineSegment(Vector(-21, 25.5, 0), Vector(21, 25.5, 0)), False)
sketch5.addGeometry(Part.ArcOfCircle(Part.Circle(Vector(21, 20, 0), Vector(0, 0, 1), 5.5), math.radians(0), math.radians(90)), False)
sketch5.addGeometry(Part.LineSegment(Vector(26.5, 20, 0), Vector(26.5, -20, 0)), False)
sketch5.addGeometry(Part.ArcOfCircle(Part.Circle(Vector(21, -20, 0), Vector(0, 0, 1), 5.5), math.radians(-90), math.radians(0)), False)
sketch5.addGeometry(Part.LineSegment(Vector(21, -25.5, 0), Vector(-21, -25.5, 0)), False)
sketch5.addGeometry(Part.ArcOfCircle(Part.Circle(Vector(-21, -20, 0), Vector(0, 0, 1), 5.5), math.radians(180), math.radians(270)), False)
sketch5.addGeometry(Part.LineSegment(Vector(-25.5, 20, 0), Vector(-25.5, -20, 0)), False)
sketch5.addGeometry(Part.ArcOfCircle(Part.Circle(Vector(-21, -20, 0), Vector(0, 0, 1), 4.5), math.radians(-180), math.radians(-90)), False)
sketch5.addGeometry(Part.LineSegment(Vector(-21, -24.5, 0), Vector(21, -24.5, 0)), False)
sketch5.addGeometry(Part.ArcOfCircle(Part.Circle(Vector(21, -20, 0), Vector(0, 0, 1), 4.5), math.radians(-90), math.radians(0)), False)
sketch5.addGeometry(Part.LineSegment(Vector(25.5, -20, 0), Vector(25.5, 20, 0)), False)
sketch5.addGeometry(Part.ArcOfCircle(Part.Circle(Vector(21, 20, 0), Vector(0, 0, 1), 4.5), math.radians(0), math.radians(90)), False)
sketch5.addGeometry(Part.LineSegment(Vector(21, 24.5, 0), Vector(-21, 24.5, 0)), False)
sketch5.addGeometry(Part.ArcOfCircle(Part.Circle(Vector(-21, 20, 0), Vector(0, 0, 1), 4.5), math.radians(90), math.radians(180)), False)
sketch5.addConstraint(Sketcher.Constraint("Tangent", 0, 2, 1, 2))
sketch5.addConstraint(Sketcher.Constraint("Tangent", 1, 1, 2, 1))
sketch5.addConstraint(Sketcher.Constraint("Tangent", 2, 2, 3, 2))
sketch5.addConstraint(Sketcher.Constraint("Tangent", 3, 1, 4, 1))
sketch5.addConstraint(Sketcher.Constraint("Tangent", 4, 2, 5, 2))
sketch5.addConstraint(Sketcher.Constraint("Tangent", 5, 1, 6, 1))
sketch5.addConstraint(Sketcher.Constraint("Tangent", 6, 2, 7, 2))
sketch5.addConstraint(Sketcher.Constraint("Tangent", 7, 1, 0, 1))
sketch5.addConstraint(Sketcher.Constraint("Tangent", 8, 2, 9, 1))
sketch5.addConstraint(Sketcher.Constraint("Tangent", 9, 2, 10, 1))
sketch5.addConstraint(Sketcher.Constraint("Tangent", 10, 2, 11, 1))
sketch5.addConstraint(Sketcher.Constraint("Tangent", 11, 2, 12, 1))
sketch5.addConstraint(Sketcher.Constraint("Tangent", 12, 2, 13, 1))
sketch5.addConstraint(Sketcher.Constraint("Tangent", 13, 2, 14, 1))
sketch5.addConstraint(Sketcher.Constraint("Tangent", 14, 2, 15, 1))
sketch5.addConstraint(Sketcher.Constraint("Tangent", 15, 2, 8, 1))
sketch5.addConstraint(Sketcher.Constraint("Vertical", 0))
sketch5.addConstraint(Sketcher.Constraint("Horizontal", 2))
sketch5.addConstraint(Sketcher.Constraint("Vertical", 4))
sketch5.addConstraint(Sketcher.Constraint("Horizontal", 6))
sketch5.addConstraint(Sketcher.Constraint("Vertical", 8))
sketch5.addConstraint(Sketcher.Constraint("Horizontal", 10))
sketch5.addConstraint(Sketcher.Constraint("Vertical", 12))
sketch5.addConstraint(Sketcher.Constraint("Horizontal", 14))
sketch5.addConstraint(Sketcher.Constraint("Coincident", 9, 3, 7, 3))
sketch5.addConstraint(Sketcher.Constraint("Coincident", 11, 3, 5, 3))
sketch5.addConstraint(Sketcher.Constraint("Coincident", 13, 3, 3, 3))
sketch5.addConstraint(Sketcher.Constraint("Equal", 1, 3))
sketch5.addConstraint(Sketcher.Constraint("Equal", 3, 5))
sketch5.addConstraint(Sketcher.Constraint("Equal", 5, 7))
sketch5.addConstraint(Sketcher.Constraint("Equal", 13, 15))
sketch5.addConstraint(Sketcher.Constraint("Symmetric", 1, 3, 5, 3, -1, 1))
sketch5.addConstraint(Sketcher.Constraint("Radius", 1, 5.5))
sketch5.addConstraint(Sketcher.Constraint("Radius", 9, 4.5))
sketch5.addConstraint(Sketcher.Constraint("DistanceX", 2, 1, 2, 2, 42.0))
sketch5.addConstraint(Sketcher.Constraint("DistanceY", 0, 1, 0, 2, 40.0))
pocket3 = body.newObject("PartDesign::Pocket", "Pocket002")
pocket3.Profile = sketch5
pocket3.Length = 1
pocket3.Reversed = True
doc.recompute()

fillet = body.newObject("PartDesign::Fillet", "Fillet")
fillet.Base = (pocket3, edges_at(pocket3, [
    (15.396, 14, 23),
    (24, 14, 14.601),
    (-15.396, 14, -23),
    (-24, 14, -14.396),
]))
fillet.Radius = 0.2

# Sketch on XZ plane
sketch6 = body.newObject("Sketcher::SketchObject", "Sketch005")
sketch6.AttachmentSupport = (doc.getObject("XZ_Plane"), [""])
sketch6.MapMode = "FlatFace"
sketch6.addGeometry(Part.Circle(Vector(-20, -19, 0), Vector(0, 0, 1), 2.2), False)
sketch6.addGeometry(Part.Circle(Vector(20, 19, 0), Vector(0, 0, 1), 2.2), False)
sketch6.addConstraint(Sketcher.Constraint("Equal", 0, 1))
sketch6.addConstraint(Sketcher.Constraint("Symmetric", 0, 3, 1, 3, -1, 1))
sketch6.addConstraint(Sketcher.Constraint("Diameter", 0, 4.5))
sketch6.addConstraint(Sketcher.Constraint("DistanceX", 0, 3, -1, 1, 20.0))
sketch6.addConstraint(Sketcher.Constraint("DistanceY", 0, 3, -1, 1, 19.0))
pocket4 = body.newObject("PartDesign::Pocket", "Pocket003")
pocket4.Profile = sketch6
pocket4.Length = 4

# Sketch on XZ plane
sketch7 = body.newObject("Sketcher::SketchObject", "Sketch006")
sketch7.AttachmentSupport = (doc.getObject("XZ_Plane"), [""])
sketch7.MapMode = "FlatFace"
sketch7.addGeometry(Part.Circle(Vector(20, -19, 0), Vector(0, 0, 1), 4), False)
sketch7.addGeometry(Part.Circle(Vector(-20, 19, 0), Vector(0, 0, 1), 4), False)
sketch7.addConstraint(Sketcher.Constraint("Equal", 0, 1))
sketch7.addConstraint(Sketcher.Constraint("Symmetric", 0, 3, 1, 3, -1, 1))
sketch7.addConstraint(Sketcher.Constraint("Diameter", 0, 8.0))
sketch7.addConstraint(Sketcher.Constraint("DistanceX", -1, 1, 0, 3, 20.0))
sketch7.addConstraint(Sketcher.Constraint("DistanceY", 0, 3, -1, 1, 19.0))
pocket5 = body.newObject("PartDesign::Pocket", "Pocket004")
pocket5.Profile = sketch7
pocket5.Length = 17
doc.recompute()

fillet2 = body.newObject("PartDesign::Fillet", "Fillet001")
fillet2.Base = (pocket5, edges_at(pocket5, [
    (0, 0, -25),
    (24.536, 0, -23.536),
    (26, 0, 0),
    (24.536, 0, 23.536),
    (0, 0, 25),
    (-24.536, 0, 23.536),
    (-26, 0, 0),
    (-24.536, 0, -23.536),
]))
fillet2.Radius = 1

# Sketch on XZ plane
sketch8 = body.newObject("Sketcher::SketchObject", "Sketch007")
sketch8.AttachmentSupport = (doc.getObject("XZ_Plane"), [""])
sketch8.MapMode = "FlatFace"
sketch8.addGeometry(Part.Circle(Vector(-20, 19, 0), Vector(0, 0, 1), 1.8), False)
sketch8.addGeometry(Part.Circle(Vector(20, -19, 0), Vector(0, 0, 1), 1.8), False)
sketch8.addConstraint(Sketcher.Constraint("Equal", 0, 1))
sketch8.addConstraint(Sketcher.Constraint("Symmetric", 0, 3, 1, 3, -1, 1))
sketch8.addConstraint(Sketcher.Constraint("Diameter", 0, 3.5))
sketch8.addConstraint(Sketcher.Constraint("DistanceX", 0, 3, -1, 1, 20.0))
sketch8.addConstraint(Sketcher.Constraint("DistanceY", -1, 1, 0, 3, 19.0))
pocket6 = body.newObject("PartDesign::Pocket", "Pocket005")
pocket6.Profile = sketch8
pocket6.Length = 25

# Sketch on XZ plane
sketch9 = body.newObject("Sketcher::SketchObject", "Sketch008")
sketch9.AttachmentSupport = (doc.getObject("XZ_Plane"), [""])
sketch9.MapMode = "FlatFace"
sketch9.addGeometry(Part.LineSegment(Vector(-7.2, 7.5, 0), Vector(-7.2, -7.5, 0)), False)
sketch9.addGeometry(Part.ArcOfCircle(Part.Circle(Vector(-8.2, -7.5, 0), Vector(0, 0, 1), 1), math.radians(180), math.radians(360)), False)
sketch9.addGeometry(Part.LineSegment(Vector(-9.2, -7.5, 0), Vector(-9.2, 7.5, 0)), False)
sketch9.addGeometry(Part.ArcOfCircle(Part.Circle(Vector(-8.2, 7.5, 0), Vector(0, 0, 1), 1), math.radians(0), math.radians(180)), False)
sketch9.addConstraint(Sketcher.Constraint("Tangent", 0, 2, 1, 2))
sketch9.addConstraint(Sketcher.Constraint("Tangent", 1, 1, 2, 1))
sketch9.addConstraint(Sketcher.Constraint("Tangent", 2, 2, 3, 2))
sketch9.addConstraint(Sketcher.Constraint("Tangent", 3, 1, 0, 1))
sketch9.addConstraint(Sketcher.Constraint("Vertical", 0))
sketch9.addConstraint(Sketcher.Constraint("Vertical", 2))
sketch9.addConstraint(Sketcher.Constraint("Radius", 1, 1.0))
sketch9.addConstraint(Sketcher.Constraint("DistanceY", 0, 2, 0, 1, 15.0))
sketch9.addConstraint(Sketcher.Constraint("DistanceX", 1, 3, -1, 1, 8.2))
sketch9.addConstraint(Sketcher.Constraint("DistanceY", 1, 3, -1, 1, 7.5))
pad3 = body.newObject("PartDesign::Pad", "Pad002")
pad3.Profile = sketch9
pad3.Length = 5.5
pad3.Reversed = True

# Sketch on XZ plane
sketch10 = body.newObject("Sketcher::SketchObject", "Sketch009")
sketch10.AttachmentSupport = (doc.getObject("XZ_Plane"), [""])
sketch10.MapMode = "FlatFace"
sketch10.addGeometry(Part.Circle(Vector(-8.2, 0, 0), Vector(0, 0, 1), 3.5), False)
sketch10.addConstraint(Sketcher.Constraint("PointOnObject", 0, 3, -1))
sketch10.addConstraint(Sketcher.Constraint("Diameter", 0, 7.0))
sketch10.addConstraint(Sketcher.Constraint("DistanceX", 0, 3, -1, 1, 8.2))
pad4 = body.newObject("PartDesign::Pad", "Pad003")
pad4.Profile = sketch10
pad4.Length = 5.5
pad4.Reversed = True

# Sketch on XZ plane
sketch11 = body.newObject("Sketcher::SketchObject", "Sketch010")
sketch11.AttachmentSupport = (doc.getObject("XZ_Plane"), [""])
sketch11.MapMode = "FlatFace"
sketch11.AttachmentOffset = App.Placement(Vector(0, 0, -5.5), App.Rotation())
sketch11.addGeometry(Part.Circle(Vector(-8.2, 0, 0), Vector(0, 0, 1), 1), False)
sketch11.addConstraint(Sketcher.Constraint("PointOnObject", 0, 3, -1))
sketch11.addConstraint(Sketcher.Constraint("Diameter", 0, 2.0))
sketch11.addConstraint(Sketcher.Constraint("DistanceX", 0, 3, -1, 1, 8.2))
pocket7 = body.newObject("PartDesign::Pocket", "Pocket006")
pocket7.Profile = sketch11
pocket7.Length = 4.5
pocket7.Reversed = True
doc.recompute()

mirrored = body.newObject("PartDesign::Mirrored", "Mirrored")
mirrored.Originals = [pad3, pad4, pocket7]
mirrored.MirrorPlane = (doc.getObject("YZ_Plane"), [""])
body.Tip = mirrored

doc.recompute()
